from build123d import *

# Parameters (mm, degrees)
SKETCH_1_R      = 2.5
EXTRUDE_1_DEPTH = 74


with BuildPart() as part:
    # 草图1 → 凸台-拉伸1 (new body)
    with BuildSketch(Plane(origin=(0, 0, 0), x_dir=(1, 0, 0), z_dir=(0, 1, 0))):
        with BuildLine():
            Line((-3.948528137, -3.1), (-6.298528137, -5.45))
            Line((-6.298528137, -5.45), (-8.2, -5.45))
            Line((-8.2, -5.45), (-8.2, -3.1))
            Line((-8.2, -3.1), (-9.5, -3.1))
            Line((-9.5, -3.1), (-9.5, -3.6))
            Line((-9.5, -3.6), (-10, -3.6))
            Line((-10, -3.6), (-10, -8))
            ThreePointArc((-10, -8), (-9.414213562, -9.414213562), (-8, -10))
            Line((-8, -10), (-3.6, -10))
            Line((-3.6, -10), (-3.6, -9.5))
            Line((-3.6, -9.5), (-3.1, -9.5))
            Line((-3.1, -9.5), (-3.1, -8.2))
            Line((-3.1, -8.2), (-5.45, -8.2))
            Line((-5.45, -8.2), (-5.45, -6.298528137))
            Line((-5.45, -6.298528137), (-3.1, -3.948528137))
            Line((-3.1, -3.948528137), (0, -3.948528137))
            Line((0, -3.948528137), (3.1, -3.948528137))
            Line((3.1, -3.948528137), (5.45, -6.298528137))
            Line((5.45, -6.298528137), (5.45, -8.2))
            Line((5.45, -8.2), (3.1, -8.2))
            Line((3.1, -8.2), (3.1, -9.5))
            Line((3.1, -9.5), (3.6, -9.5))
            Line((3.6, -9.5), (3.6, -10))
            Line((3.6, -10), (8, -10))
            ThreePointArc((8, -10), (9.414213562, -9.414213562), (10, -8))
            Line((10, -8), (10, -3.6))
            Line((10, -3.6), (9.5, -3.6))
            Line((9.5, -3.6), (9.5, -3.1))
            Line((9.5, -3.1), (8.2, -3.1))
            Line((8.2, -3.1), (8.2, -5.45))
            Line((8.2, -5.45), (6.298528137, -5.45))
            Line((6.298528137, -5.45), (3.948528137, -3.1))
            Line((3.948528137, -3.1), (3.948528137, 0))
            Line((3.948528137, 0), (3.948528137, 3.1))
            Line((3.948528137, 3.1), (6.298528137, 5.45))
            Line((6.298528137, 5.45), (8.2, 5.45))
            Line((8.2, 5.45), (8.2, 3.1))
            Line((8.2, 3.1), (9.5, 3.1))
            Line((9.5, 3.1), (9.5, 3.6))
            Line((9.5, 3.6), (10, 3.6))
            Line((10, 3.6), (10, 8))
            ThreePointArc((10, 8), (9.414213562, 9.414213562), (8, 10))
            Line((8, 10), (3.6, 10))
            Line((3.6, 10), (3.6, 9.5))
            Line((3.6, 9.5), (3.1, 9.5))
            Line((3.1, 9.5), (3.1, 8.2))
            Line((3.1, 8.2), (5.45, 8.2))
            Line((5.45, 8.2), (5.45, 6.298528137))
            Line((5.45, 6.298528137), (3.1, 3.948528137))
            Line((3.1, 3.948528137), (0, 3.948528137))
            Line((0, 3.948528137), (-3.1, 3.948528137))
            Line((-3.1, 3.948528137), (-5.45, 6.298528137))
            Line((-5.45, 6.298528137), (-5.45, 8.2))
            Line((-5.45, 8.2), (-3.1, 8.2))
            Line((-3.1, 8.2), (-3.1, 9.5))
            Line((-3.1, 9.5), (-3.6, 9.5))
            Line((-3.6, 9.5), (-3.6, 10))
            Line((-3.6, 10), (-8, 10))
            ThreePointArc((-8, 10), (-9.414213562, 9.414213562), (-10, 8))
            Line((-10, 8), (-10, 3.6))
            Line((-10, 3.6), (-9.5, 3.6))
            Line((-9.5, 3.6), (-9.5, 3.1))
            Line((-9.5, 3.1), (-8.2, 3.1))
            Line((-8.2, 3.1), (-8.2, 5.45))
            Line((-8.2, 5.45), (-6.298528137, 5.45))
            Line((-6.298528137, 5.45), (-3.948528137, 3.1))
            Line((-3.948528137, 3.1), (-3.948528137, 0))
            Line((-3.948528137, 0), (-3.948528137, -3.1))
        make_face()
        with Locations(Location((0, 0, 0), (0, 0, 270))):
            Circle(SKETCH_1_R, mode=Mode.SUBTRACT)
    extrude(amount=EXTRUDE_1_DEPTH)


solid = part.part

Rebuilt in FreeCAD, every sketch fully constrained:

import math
import FreeCAD as App
import Part
import Sketcher
Q = App.Units.Quantity

doc = App.newDocument("Part")
params = doc.addObject("Spreadsheet::Sheet", "Params")
for row, (alias, value) in enumerate([
    ("sketch1_diameter", "5 mm"),
    ("sketch1_radius", "2 mm"),
    ("sketch1_width", "1.3 mm"),
    ("sketch1_width2", "0.5 mm"),
    ("sketch1_width3", "4.4 mm"),
    ("pad1_length", "74 mm"),
], start=1):
    params.set(f"A{row}", alias)
    params.set(f"B{row}", "=" + value)
    params.setAlias(f"B{row}", alias)

body = doc.addObject("PartDesign::Body", "Body")

# Sketch on XZ plane
sketch1 = body.newObject("Sketcher::SketchObject", "Sketch")
sketch1.AttachmentSupport = (doc.getObject("XZ_Plane"), [""])
sketch1.MapMode = "FlatFace"
sketch1.addGeometry(Part.LineSegment(App.Vector(-3.9, 3.1, 0), App.Vector(-6.3, 5.5, 0)), False)
sketch1.addGeometry(Part.LineSegment(App.Vector(-6.3, 5.5, 0), App.Vector(-8.2, 5.5, 0)), False)
sketch1.addGeometry(Part.LineSegment(App.Vector(-8.2, 5.5, 0), App.Vector(-8.2, 3.1, 0)), False)
sketch1.addGeometry(Part.LineSegment(App.Vector(-8.2, 3.1, 0), App.Vector(-9.5, 3.1, 0)), False)
sketch1.addGeometry(Part.LineSegment(App.Vector(-9.5, 3.1, 0), App.Vector(-9.5, 3.6, 0)), False)
sketch1.addGeometry(Part.LineSegment(App.Vector(-9.5, 3.6, 0), App.Vector(-10, 3.6, 0)), False)
sketch1.addGeometry(Part.LineSegment(App.Vector(-10, 3.6, 0), App.Vector(-10, 8, 0)), False)
sketch1.addGeometry(Part.ArcOfCircle(Part.Circle(App.Vector(-8, 8, 0), App.Vector(0, 0, 1), 2), math.radians(90), math.radians(180)), False)
sketch1.addGeometry(Part.LineSegment(App.Vector(-8, 10, 0), App.Vector(-3.6, 10, 0)), False)
sketch1.addGeometry(Part.LineSegment(App.Vector(-3.6, 10, 0), App.Vector(-3.6, 9.5, 0)), False)
sketch1.addGeometry(Part.LineSegment(App.Vector(-3.6, 9.5, 0), App.Vector(-3.1, 9.5, 0)), False)
sketch1.addGeometry(Part.LineSegment(App.Vector(-3.1, 9.5, 0), App.Vector(-3.1, 8.2, 0)), False)
sketch1.addGeometry(Part.LineSegment(App.Vector(-3.1, 8.2, 0), App.Vector(-5.5, 8.2, 0)), False)
sketch1.addGeometry(Part.LineSegment(App.Vector(-5.5, 8.2, 0), App.Vector(-5.5, 6.3, 0)), False)
sketch1.addGeometry(Part.LineSegment(App.Vector(-5.5, 6.3, 0), App.Vector(-3.1, 3.9, 0)), False)
sketch1.addGeometry(Part.LineSegment(App.Vector(-3.1, 3.9, 0), App.Vector(3.1, 3.9, 0)), False)
sketch1.addGeometry(Part.LineSegment(App.Vector(3.1, 3.9, 0), App.Vector(5.5, 6.3, 0)), False)
sketch1.addGeometry(Part.LineSegment(App.Vector(5.5, 6.3, 0), App.Vector(5.5, 8.2, 0)), False)
sketch1.addGeometry(Part.LineSegment(App.Vector(5.5, 8.2, 0), App.Vector(3.1, 8.2, 0)), False)
sketch1.addGeometry(Part.LineSegment(App.Vector(3.1, 8.2, 0), App.Vector(3.1, 9.5, 0)), False)
sketch1.addGeometry(Part.LineSegment(App.Vector(3.1, 9.5, 0), App.Vector(3.6, 9.5, 0)), False)
sketch1.addGeometry(Part.LineSegment(App.Vector(3.6, 9.5, 0), App.Vector(3.6, 10, 0)), False)
sketch1.addGeometry(Part.LineSegment(App.Vector(3.6, 10, 0), App.Vector(8, 10, 0)), False)
sketch1.addGeometry(Part.ArcOfCircle(Part.Circle(App.Vector(8, 8, 0), App.Vector(0, 0, 1), 2), math.radians(0), math.radians(90)), False)
sketch1.addGeometry(Part.LineSegment(App.Vector(10, 8, 0), App.Vector(10, 3.6, 0)), False)
sketch1.addGeometry(Part.LineSegment(App.Vector(10, 3.6, 0), App.Vector(9.5, 3.6, 0)), False)
sketch1.addGeometry(Part.LineSegment(App.Vector(9.5, 3.6, 0), App.Vector(9.5, 3.1, 0)), False)
sketch1.addGeometry(Part.LineSegment(App.Vector(9.5, 3.1, 0), App.Vector(8.2, 3.1, 0)), False)
sketch1.addGeometry(Part.LineSegment(App.Vector(8.2, 3.1, 0), App.Vector(8.2, 5.5, 0)), False)
sketch1.addGeometry(Part.LineSegment(App.Vector(8.2, 5.5, 0), App.Vector(6.3, 5.5, 0)), False)
sketch1.addGeometry(Part.LineSegment(App.Vector(6.3, 5.5, 0), App.Vector(3.9, 3.1, 0)), False)
sketch1.addGeometry(Part.LineSegment(App.Vector(3.9, 3.1, 0), App.Vector(3.9, -3.1, 0)), False)
sketch1.addGeometry(Part.LineSegment(App.Vector(3.9, -3.1, 0), App.Vector(6.3, -5.5, 0)), False)
sketch1.addGeometry(Part.LineSegment(App.Vector(6.3, -5.5, 0), App.Vector(8.2, -5.5, 0)), False)
sketch1.addGeometry(Part.LineSegment(App.Vector(8.2, -5.5, 0), App.Vector(8.2, -3.1, 0)), False)
sketch1.addGeometry(Part.LineSegment(App.Vector(8.2, -3.1, 0), App.Vector(9.5, -3.1, 0)), False)
sketch1.addGeometry(Part.LineSegment(App.Vector(9.5, -3.1, 0), App.Vector(9.5, -3.6, 0)), False)
sketch1.addGeometry(Part.LineSegment(App.Vector(9.5, -3.6, 0), App.Vector(10, -3.6, 0)), False)
sketch1.addGeometry(Part.LineSegment(App.Vector(10, -3.6, 0), App.Vector(10, -8, 0)), False)
sketch1.addGeometry(Part.ArcOfCircle(Part.Circle(App.Vector(8, -8, 0), App.Vector(0, 0, 1), 2), math.radians(-90), math.radians(0)), False)
sketch1.addGeometry(Part.LineSegment(App.Vector(8, -10, 0), App.Vector(3.6, -10, 0)), False)
sketch1.addGeometry(Part.LineSegment(App.Vector(3.6, -10, 0), App.Vector(3.6, -9.5, 0)), False)
sketch1.addGeometry(Part.LineSegment(App.Vector(3.6, -9.5, 0), App.Vector(3.1, -9.5, 0)), False)
sketch1.addGeometry(Part.LineSegment(App.Vector(3.1, -9.5, 0), App.Vector(3.1, -8.2, 0)), False)
sketch1.addGeometry(Part.LineSegment(App.Vector(3.1, -8.2, 0), App.Vector(5.5, -8.2, 0)), False)
sketch1.addGeometry(Part.LineSegment(App.Vector(5.5, -8.2, 0), App.Vector(5.5, -6.3, 0)), False)
sketch1.addGeometry(Part.LineSegment(App.Vector(5.5, -6.3, 0), App.Vector(3.1, -3.9, 0)), False)
sketch1.addGeometry(Part.LineSegment(App.Vector(3.1, -3.9, 0), App.Vector(-3.1, -3.9, 0)), False)
sketch1.addGeometry(Part.LineSegment(App.Vector(-3.1, -3.9, 0), App.Vector(-5.5, -6.3, 0)), False)
sketch1.addGeometry(Part.LineSegment(App.Vector(-5.5, -6.3, 0), App.Vector(-5.5, -8.2, 0)), False)
sketch1.addGeometry(Part.LineSegment(App.Vector(-5.5, -8.2, 0), App.Vector(-3.1, -8.2, 0)), False)
sketch1.addGeometry(Part.LineSegment(App.Vector(-3.1, -8.2, 0), App.Vector(-3.1, -9.5, 0)), False)
sketch1.addGeometry(Part.LineSegment(App.Vector(-3.1, -9.5, 0), App.Vector(-3.6, -9.5, 0)), False)
sketch1.addGeometry(Part.LineSegment(App.Vector(-3.6, -9.5, 0), App.Vector(-3.6, -10, 0)), False)
sketch1.addGeometry(Part.LineSegment(App.Vector(-3.6, -10, 0), App.Vector(-8, -10, 0)), False)
sketch1.addGeometry(Part.ArcOfCircle(Part.Circle(App.Vector(-8, -8, 0), App.Vector(0, 0, 1), 2), math.radians(-180), math.radians(-90)), False)
sketch1.addGeometry(Part.LineSegment(App.Vector(-10, -8, 0), App.Vector(-10, -3.6, 0)), False)
sketch1.addGeometry(Part.LineSegment(App.Vector(-10, -3.6, 0), App.Vector(-9.5, -3.6, 0)), False)
sketch1.addGeometry(Part.LineSegment(App.Vector(-9.5, -3.6, 0), App.Vector(-9.5, -3.1, 0)), False)
sketch1.addGeometry(Part.LineSegment(App.Vector(-9.5, -3.1, 0), App.Vector(-8.2, -3.1, 0)), False)
sketch1.addGeometry(Part.LineSegment(App.Vector(-8.2, -3.1, 0), App.Vector(-8.2, -5.5, 0)), False)
sketch1.addGeometry(Part.LineSegment(App.Vector(-8.2, -5.5, 0), App.Vector(-6.3, -5.5, 0)), False)
sketch1.addGeometry(Part.LineSegment(App.Vector(-6.3, -5.5, 0), App.Vector(-3.9, -3.1, 0)), False)
sketch1.addGeometry(Part.LineSegment(App.Vector(-3.9, -3.1, 0), App.Vector(-3.9, 3.1, 0)), False)
sketch1.addGeometry(Part.Circle(App.Vector(0, 0, 0), App.Vector(0, 0, 1), 2.5), False)
sketch1.addConstraint(Sketcher.Constraint("Coincident", 0, 2, 1, 1))
sketch1.addConstraint(Sketcher.Constraint("Coincident", 1, 2, 2, 1))
sketch1.addConstraint(Sketcher.Constraint("Coincident", 2, 2, 3, 1))
sketch1.addConstraint(Sketcher.Constraint("Coincident", 3, 2, 4, 1))
sketch1.addConstraint(Sketcher.Constraint("Coincident", 4, 2, 5, 1))
sketch1.addConstraint(Sketcher.Constraint("Coincident", 5, 2, 6, 1))
sketch1.addConstraint(Sketcher.Constraint("Tangent", 6, 2, 7, 2))
sketch1.addConstraint(Sketcher.Constraint("Tangent", 7, 1, 8, 1))
sketch1.addConstraint(Sketcher.Constraint("Coincident", 8, 2, 9, 1))
sketch1.addConstraint(Sketcher.Constraint("Coincident", 9, 2, 10, 1))
sketch1.addConstraint(Sketcher.Constraint("Coincident", 10, 2, 11, 1))
sketch1.addConstraint(Sketcher.Constraint("Coincident", 11, 2, 12, 1))
sketch1.addConstraint(Sketcher.Constraint("Coincident", 12, 2, 13, 1))
sketch1.addConstraint(Sketcher.Constraint("Coincident", 13, 2, 14, 1))
sketch1.addConstraint(Sketcher.Constraint("Coincident", 14, 2, 15, 1))
sketch1.addConstraint(Sketcher.Constraint("Coincident", 15, 2, 16, 1))
sketch1.addConstraint(Sketcher.Constraint("Coincident", 16, 2, 17, 1))
sketch1.addConstraint(Sketcher.Constraint("Coincident", 17, 2, 18, 1))
sketch1.addConstraint(Sketcher.Constraint("Coincident", 18, 2, 19, 1))
sketch1.addConstraint(Sketcher.Constraint("Coincident", 19, 2, 20, 1))
sketch1.addConstraint(Sketcher.Constraint("Coincident", 20, 2, 21, 1))
sketch1.addConstraint(Sketcher.Constraint("Coincident", 21, 2, 22, 1))
sketch1.addConstraint(Sketcher.Constraint("Tangent", 22, 2, 23, 2))
sketch1.addConstraint(Sketcher.Constraint("Tangent", 23, 1, 24, 1))
sketch1.addConstraint(Sketcher.Constraint("Coincident", 24, 2, 25, 1))
sketch1.addConstraint(Sketcher.Constraint("Coincident", 25, 2, 26, 1))
sketch1.addConstraint(Sketcher.Constraint("Coincident", 26, 2, 27, 1))
sketch1.addConstraint(Sketcher.Constraint("Coincident", 27, 2, 28, 1))
sketch1.addConstraint(Sketcher.Constraint("Coincident", 28, 2, 29, 1))
sketch1.addConstraint(Sketcher.Constraint("Coincident", 29, 2, 30, 1))
sketch1.addConstraint(Sketcher.Constraint("Coincident", 30, 2, 31, 1))
sketch1.addConstraint(Sketcher.Constraint("Coincident", 31, 2, 32, 1))
sketch1.addConstraint(Sketcher.Constraint("Coincident", 32, 2, 33, 1))
sketch1.addConstraint(Sketcher.Constraint("Coincident", 33, 2, 34, 1))
sketch1.addConstraint(Sketcher.Constraint("Coincident", 34, 2, 35, 1))
sketch1.addConstraint(Sketcher.Constraint("Coincident", 35, 2, 36, 1))
sketch1.addConstraint(Sketcher.Constraint("Coincident", 36, 2, 37, 1))
sketch1.addConstraint(Sketcher.Constraint("Coincident", 37, 2, 38, 1))
sketch1.addConstraint(Sketcher.Constraint("Tangent", 38, 2, 39, 2))
sketch1.addConstraint(Sketcher.Constraint("Tangent", 39, 1, 40, 1))
sketch1.addConstraint(Sketcher.Constraint("Coincident", 40, 2, 41, 1))
sketch1.addConstraint(Sketcher.Constraint("Coincident", 41, 2, 42, 1))
sketch1.addConstraint(Sketcher.Constraint("Coincident", 42, 2, 43, 1))
sketch1.addConstraint(Sketcher.Constraint("Coincident", 43, 2, 44, 1))
sketch1.addConstraint(Sketcher.Constraint("Coincident", 44, 2, 45, 1))
sketch1.addConstraint(Sketcher.Constraint("Coincident", 45, 2, 46, 1))
sketch1.addConstraint(Sketcher.Constraint("Coincident", 46, 2, 47, 1))
sketch1.addConstraint(Sketcher.Constraint("Coincident", 47, 2, 48, 1))
sketch1.addConstraint(Sketcher.Constraint("Coincident", 48, 2, 49, 1))
sketch1.addConstraint(Sketcher.Constraint("Coincident", 49, 2, 50, 1))
sketch1.addConstraint(Sketcher.Constraint("Coincident", 50, 2, 51, 1))
sketch1.addConstraint(Sketcher.Constraint("Coincident", 51, 2, 52, 1))
sketch1.addConstraint(Sketcher.Constraint("Coincident", 52, 2, 53, 1))
sketch1.addConstraint(Sketcher.Constraint("Coincident", 53, 2, 54, 1))
sketch1.addConstraint(Sketcher.Constraint("Tangent", 54, 2, 55, 2))
sketch1.addConstraint(Sketcher.Constraint("Tangent", 55, 1, 56, 1))
sketch1.addConstraint(Sketcher.Constraint("Coincident", 56, 2, 57, 1))
sketch1.addConstraint(Sketcher.Constraint("Coincident", 57, 2, 58, 1))
sketch1.addConstraint(Sketcher.Constraint("Coincident", 58, 2, 59, 1))
sketch1.addConstraint(Sketcher.Constraint("Coincident", 59, 2, 60, 1))
sketch1.addConstraint(Sketcher.Constraint("Coincident", 60, 2, 61, 1))
sketch1.addConstraint(Sketcher.Constraint("Coincident", 61, 2, 62, 1))
sketch1.addConstraint(Sketcher.Constraint("Coincident", 62, 2, 63, 1))
sketch1.addConstraint(Sketcher.Constraint("Coincident", 63, 2, 0, 1))
sketch1.addConstraint(Sketcher.Constraint("Horizontal", 1))
sketch1.addConstraint(Sketcher.Constraint("Vertical", 2))
sketch1.addConstraint(Sketcher.Constraint("Horizontal", 3))
sketch1.addConstraint(Sketcher.Constraint("Vertical", 4))
sketch1.addConstraint(Sketcher.Constraint("Horizontal", 5))
sketch1.addConstraint(Sketcher.Constraint("Vertical", 6))
sketch1.addConstraint(Sketcher.Constraint("Horizontal", 8))
sketch1.addConstraint(Sketcher.Constraint("Vertical", 9))
sketch1.addConstraint(Sketcher.Constraint("Horizontal", 10))
sketch1.addConstraint(Sketcher.Constraint("Vertical", 11))
sketch1.addConstraint(Sketcher.Constraint("Horizontal", 12))
sketch1.addConstraint(Sketcher.Constraint("Vertical", 13))
sketch1.addConstraint(Sketcher.Constraint("Horizontal", 15))
sketch1.addConstraint(Sketcher.Constraint("Vertical", 17))
sketch1.addConstraint(Sketcher.Constraint("Horizontal", 18))
sketch1.addConstraint(Sketcher.Constraint("Vertical", 19))
sketch1.addConstraint(Sketcher.Constraint("Horizontal", 20))
sketch1.addConstraint(Sketcher.Constraint("Vertical", 21))
sketch1.addConstraint(Sketcher.Constraint("Horizontal", 22))
sketch1.addConstraint(Sketcher.Constraint("Vertical", 24))
sketch1.addConstraint(Sketcher.Constraint("Horizontal", 25))
sketch1.addConstraint(Sketcher.Constraint("Vertical", 26))
sketch1.addConstraint(Sketcher.Constraint("Horizontal", 27))
sketch1.addConstraint(Sketcher.Constraint("Vertical", 28))
sketch1.addConstraint(Sketcher.Constraint("Horizontal", 29))
sketch1.addConstraint(Sketcher.Constraint("Vertical", 31))
sketch1.addConstraint(Sketcher.Constraint("Horizontal", 33))
sketch1.addConstraint(Sketcher.Constraint("Vertical", 34))
sketch1.addConstraint(Sketcher.Constraint("Horizontal", 35))
sketch1.addConstraint(Sketcher.Constraint("Vertical", 36))
sketch1.addConstraint(Sketcher.Constraint("Horizontal", 37))
sketch1.addConstraint(Sketcher.Constraint("Vertical", 38))
sketch1.addConstraint(Sketcher.Constraint("Horizontal", 40))
sketch1.addConstraint(Sketcher.Constraint("Vertical", 41))
sketch1.addConstraint(Sketcher.Constraint("Horizontal", 42))
sketch1.addConstraint(Sketcher.Constraint("Vertical", 43))
sketch1.addConstraint(Sketcher.Constraint("Horizontal", 44))
sketch1.addConstraint(Sketcher.Constraint("Vertical", 45))
sketch1.addConstraint(Sketcher.Constraint("Horizontal", 47))
sketch1.addConstraint(Sketcher.Constraint("Vertical", 49))
sketch1.addConstraint(Sketcher.Constraint("Horizontal", 50))
sketch1.addConstraint(Sketcher.Constraint("Vertical", 51))
sketch1.addConstraint(Sketcher.Constraint("Horizontal", 52))
sketch1.addConstraint(Sketcher.Constraint("Vertical", 53))
sketch1.addConstraint(Sketcher.Constraint("Horizontal", 54))
sketch1.addConstraint(Sketcher.Constraint("Vertical", 56))
sketch1.addConstraint(Sketcher.Constraint("Horizontal", 57))
sketch1.addConstraint(Sketcher.Constraint("Vertical", 58))
sketch1.addConstraint(Sketcher.Constraint("Horizontal", 59))
sketch1.addConstraint(Sketcher.Constraint("Vertical", 60))
sketch1.addConstraint(Sketcher.Constraint("Horizontal", 61))
sketch1.addConstraint(Sketcher.Constraint("Vertical", 63))
sketch1.addConstraint(Sketcher.Constraint("Coincident", 64, 3, -1, 1))
sketch1.addConstraint(Sketcher.Constraint("Equal", 7, 23))
sketch1.addConstraint(Sketcher.Constraint("Equal", 23, 39))
sketch1.addConstraint(Sketcher.Constraint("Equal", 39, 55))
sketch1.addConstraint(Sketcher.Constraint("Symmetric", 7, 3, 39, 3, -1, 1))
sketch1.addConstraint(Sketcher.Constraint("Symmetric", 23, 3, 55, 3, -1, 1))
sketch1.addConstraint(Sketcher.Constraint("Symmetric", 0, 2, 32, 2, -1, 1))
sketch1.addConstraint(Sketcher.Constraint("Symmetric", 2, 2, 34, 2, -1, 1))
sketch1.addConstraint(Sketcher.Constraint("Symmetric", 4, 2, 36, 2, -1, 1))
sketch1.addConstraint(Sketcher.Constraint("Symmetric", 9, 2, 41, 2, -1, 1))
sketch1.addConstraint(Sketcher.Constraint("Symmetric", 11, 2, 43, 2, -1, 1))
sketch1.addConstraint(Sketcher.Constraint("Symmetric", 13, 2, 45, 2, -1, 1))
sketch1.addConstraint(Sketcher.Constraint("Symmetric", 14, 2, 46, 2, -1, 1))
sketch1.addConstraint(Sketcher.Constraint("Symmetric", 16, 2, 48, 2, -1, 1))
sketch1.addConstraint(Sketcher.Constraint("Symmetric", 18, 2, 50, 2, -1, 1))
sketch1.addConstraint(Sketcher.Constraint("Symmetric", 20, 2, 52, 2, -1, 1))
sketch1.addConstraint(Sketcher.Constraint("Symmetric", 25, 2, 57, 2, -1, 1))
sketch1.addConstraint(Sketcher.Constraint("Symmetric", 27, 2, 59, 2, -1, 1))
sketch1.addConstraint(Sketcher.Constraint("Symmetric", 29, 2, 61, 2, -1, 1))
sketch1.addConstraint(Sketcher.Constraint("Symmetric", 30, 2, 62, 2, -1, 1))
sketch1.addConstraint(Sketcher.Constraint("Symmetric", 7, 3, 23, 3, -2))
sketch1.addConstraint(Sketcher.Constraint("Symmetric", 13, 2, 16, 2, -2))
sketch1.addConstraint(Sketcher.Constraint("Symmetric", 11, 2, 18, 2, -2))
sketch1.addConstraint(Sketcher.Constraint("Symmetric", 9, 2, 20, 2, -2))
sketch1.addConstraint(Sketcher.Constraint("Symmetric", 4, 2, 25, 2, -2))
sketch1.addConstraint(Sketcher.Constraint("Symmetric", 2, 2, 27, 2, -2))
sketch1.addConstraint(Sketcher.Constraint("Symmetric", 0, 2, 29, 2, -2))
sketch1.addConstraint(Sketcher.Constraint("Parallel", 0, 14))
sketch1.addConstraint(Sketcher.Constraint("Perpendicular", 14, 16))
sketch1.addConstraint(Sketcher.Constraint("Parallel", 16, 30))
sketch1.addConstraint(Sketcher.Constraint("Perpendicular", 30, 32))
sketch1.addConstraint(Sketcher.Constraint("Perpendicular", 46, 48))
sketch1.addConstraint(Sketcher.Constraint("Horizontal", 27, 2, 30, 2))
sketch1.addConstraint(Sketcher.Constraint("Horizontal", 31, 2, 34, 2))
sketch1.addConstraint(Sketcher.Constraint("Vertical", 11, 2, 14, 2))
sketch1.addConstraint(Sketcher.Constraint("Equal", 5, 10))
sketch1.addConstraint(Sketcher.Constraint("Equal", 50, 2))
sketch1.addConstraint(Sketcher.Constraint("Equal", 57, 4))
sketch1.addConstraint(Sketcher.Constraint("Equal", 54, 6))
sketch1.addConstraint(Sketcher.Constraint("Equal", 4, 9))
sketch1.addConstraint(Sketcher.Constraint("Equal", 59, 11))
sketch1.addConstraint(Sketcher.Constraint("Equal", 61, 13))
sketch1.addConstraint(Sketcher.Constraint("Equal", 47, 31))
sketch1.addConstraint(Sketcher.Constraint("Diameter", 64, Q("5 mm")))
sketch1.addConstraint(Sketcher.Constraint("Radius", 7, Q("2 mm")))
sketch1.addConstraint(Sketcher.Constraint("DistanceX", 3, 2, 3, 1, Q("1.3 mm")))
sketch1.addConstraint(Sketcher.Constraint("DistanceX", 5, 2, 5, 1, Q("0.5 mm")))
sketch1.addConstraint(Sketcher.Constraint("DistanceX", 8, 1, 8, 2, Q("4.4 mm")))
sketch1.addConstraint(Sketcher.Constraint("DistanceX", 15, 1, 15, 2, Q("6.2 mm")))
sketch1.addConstraint(Sketcher.Constraint("DistanceX", 12, 2, 12, 1, Q("2.35 mm")))
sketch1.addConstraint(Sketcher.Constraint("DistanceX", 1, 2, 1, 1, Q("1.901472 mm")))
sketch1.setExpression("Constraints[159]", "Params.sketch1_diameter")
sketch1.setExpression("Constraints[160]", "Params.sketch1_radius")
sketch1.setExpression("Constraints[161]", "Params.sketch1_width")
sketch1.setExpression("Constraints[162]", "Params.sketch1_width2")
sketch1.setExpression("Constraints[163]", "Params.sketch1_width3")
pad1 = body.newObject("PartDesign::Pad", "Pad")
pad1.Profile = sketch1
pad1.setExpression("Length", "Params.pad1_length")
pad1.Reversed = True

doc.recompute()
